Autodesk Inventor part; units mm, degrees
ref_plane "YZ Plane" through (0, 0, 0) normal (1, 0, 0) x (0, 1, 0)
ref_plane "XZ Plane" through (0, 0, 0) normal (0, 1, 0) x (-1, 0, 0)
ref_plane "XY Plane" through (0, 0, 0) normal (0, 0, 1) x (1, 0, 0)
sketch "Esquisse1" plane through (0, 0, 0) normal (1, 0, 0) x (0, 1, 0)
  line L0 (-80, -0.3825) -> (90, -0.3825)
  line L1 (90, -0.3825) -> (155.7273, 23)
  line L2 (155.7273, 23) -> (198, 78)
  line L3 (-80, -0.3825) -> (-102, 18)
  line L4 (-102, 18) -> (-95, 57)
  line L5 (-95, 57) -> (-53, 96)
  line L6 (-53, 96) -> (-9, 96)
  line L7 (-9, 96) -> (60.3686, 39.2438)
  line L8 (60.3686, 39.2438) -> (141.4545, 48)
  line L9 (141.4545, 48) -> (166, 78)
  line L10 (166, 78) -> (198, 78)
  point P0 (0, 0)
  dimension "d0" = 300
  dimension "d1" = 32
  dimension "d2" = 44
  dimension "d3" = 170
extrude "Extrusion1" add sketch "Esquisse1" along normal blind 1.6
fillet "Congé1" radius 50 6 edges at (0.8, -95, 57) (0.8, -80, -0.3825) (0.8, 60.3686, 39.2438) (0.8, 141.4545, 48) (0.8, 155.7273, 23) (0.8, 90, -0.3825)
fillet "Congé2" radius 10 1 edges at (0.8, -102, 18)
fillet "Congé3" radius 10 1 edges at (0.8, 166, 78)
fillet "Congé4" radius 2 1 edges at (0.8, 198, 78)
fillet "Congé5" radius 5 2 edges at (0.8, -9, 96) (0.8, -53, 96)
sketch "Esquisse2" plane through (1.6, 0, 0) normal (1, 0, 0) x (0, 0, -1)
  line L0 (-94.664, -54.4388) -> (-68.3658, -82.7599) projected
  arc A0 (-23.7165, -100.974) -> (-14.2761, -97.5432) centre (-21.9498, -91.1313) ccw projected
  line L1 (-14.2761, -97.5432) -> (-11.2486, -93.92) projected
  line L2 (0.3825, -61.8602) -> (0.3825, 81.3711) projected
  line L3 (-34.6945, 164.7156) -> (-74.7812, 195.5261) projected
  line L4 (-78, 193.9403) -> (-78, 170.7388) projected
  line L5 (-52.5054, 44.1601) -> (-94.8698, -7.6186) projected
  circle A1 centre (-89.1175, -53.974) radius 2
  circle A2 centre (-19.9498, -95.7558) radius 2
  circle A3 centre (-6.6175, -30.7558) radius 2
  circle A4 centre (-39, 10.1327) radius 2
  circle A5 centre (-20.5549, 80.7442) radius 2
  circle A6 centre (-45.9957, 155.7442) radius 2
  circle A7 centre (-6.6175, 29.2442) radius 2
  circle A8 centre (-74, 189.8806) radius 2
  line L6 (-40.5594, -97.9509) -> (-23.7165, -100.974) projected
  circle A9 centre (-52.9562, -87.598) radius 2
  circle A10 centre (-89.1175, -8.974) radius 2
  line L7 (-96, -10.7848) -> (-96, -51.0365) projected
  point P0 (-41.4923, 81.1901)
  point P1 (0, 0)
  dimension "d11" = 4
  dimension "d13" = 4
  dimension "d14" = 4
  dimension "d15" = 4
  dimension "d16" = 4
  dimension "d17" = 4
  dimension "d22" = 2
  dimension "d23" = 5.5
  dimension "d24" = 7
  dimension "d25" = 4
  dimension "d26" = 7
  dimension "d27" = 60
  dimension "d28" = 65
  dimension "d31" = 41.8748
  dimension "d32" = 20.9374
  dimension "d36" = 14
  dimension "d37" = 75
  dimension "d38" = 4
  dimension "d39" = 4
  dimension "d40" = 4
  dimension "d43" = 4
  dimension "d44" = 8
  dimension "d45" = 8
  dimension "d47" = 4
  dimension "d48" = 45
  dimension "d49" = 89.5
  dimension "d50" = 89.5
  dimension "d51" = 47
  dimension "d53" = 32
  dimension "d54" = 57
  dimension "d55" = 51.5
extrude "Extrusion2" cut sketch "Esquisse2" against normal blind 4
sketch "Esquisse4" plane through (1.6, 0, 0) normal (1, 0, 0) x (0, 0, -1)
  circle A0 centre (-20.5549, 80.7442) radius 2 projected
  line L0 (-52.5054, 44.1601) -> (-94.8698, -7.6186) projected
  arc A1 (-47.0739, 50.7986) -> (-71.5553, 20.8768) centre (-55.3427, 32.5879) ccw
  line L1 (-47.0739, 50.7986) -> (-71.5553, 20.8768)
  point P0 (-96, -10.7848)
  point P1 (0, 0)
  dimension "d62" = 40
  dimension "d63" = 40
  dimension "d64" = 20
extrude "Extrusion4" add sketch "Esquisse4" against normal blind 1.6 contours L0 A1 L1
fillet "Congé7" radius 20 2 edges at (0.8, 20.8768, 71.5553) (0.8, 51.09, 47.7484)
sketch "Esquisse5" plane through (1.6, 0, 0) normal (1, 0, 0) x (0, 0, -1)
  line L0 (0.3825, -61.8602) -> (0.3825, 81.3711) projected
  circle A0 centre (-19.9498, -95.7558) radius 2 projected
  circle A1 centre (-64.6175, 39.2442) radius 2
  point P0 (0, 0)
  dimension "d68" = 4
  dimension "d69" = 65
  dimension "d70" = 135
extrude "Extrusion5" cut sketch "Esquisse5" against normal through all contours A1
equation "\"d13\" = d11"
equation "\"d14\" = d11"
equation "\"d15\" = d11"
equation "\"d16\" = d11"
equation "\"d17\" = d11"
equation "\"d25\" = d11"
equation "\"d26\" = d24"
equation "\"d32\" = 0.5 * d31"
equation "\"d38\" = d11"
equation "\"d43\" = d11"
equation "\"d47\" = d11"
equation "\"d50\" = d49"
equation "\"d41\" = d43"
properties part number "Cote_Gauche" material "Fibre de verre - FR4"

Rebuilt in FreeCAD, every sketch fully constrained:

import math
import FreeCAD as App
import Part
import Sketcher

V = App.Vector
Q = App.Units.Quantity


def edges_at(feature, points):
    """Names of the edges that pass closest to the given points."""
    edges = feature.Shape.Edges
    near = lambda p: min(range(len(edges)), key=lambda i: edges[i].distToShape(Part.Vertex(*p))[0])
    return sorted({f"Edge{near(p) + 1}" for p in points})

doc = App.newDocument("Part")
params = doc.addObject("Spreadsheet::Sheet", "Params")
for row, (alias, value) in enumerate([
    ("sketch1_width", "170 mm"),
    ("sketch1_width2", "32 mm"),
    ("sketch1_width3", "44 mm"),
    ("pad1_length", "1.6 mm"),
    ("fillet_radius", "50 mm"),
    ("fillet2_radius", "10 mm"),
    ("fillet3_radius", "10 mm"),
    ("fillet4_radius", "2 mm"),
    ("fillet5_radius", "5 mm"),
    ("sketch2_diameter", "4 mm"),
    ("pocket1_length", "4 mm"),
    ("sketch3_radius", "20 mm"),
    ("pad2_length", "1.6 mm"),
    ("fillet6_radius", "20 mm"),
    ("sketch4_diameter", "4 mm"),
], start=1):
    params.set(f"A{row}", alias)
    params.set(f"B{row}", "=" + value)
    params.setAlias(f"B{row}", alias)

body = doc.addObject("PartDesign::Body", "Body")

# Sketch on YZ plane
sketch1 = doc.addObject("Sketcher::SketchObject", "Sketch")
body.addObject(sketch1)
sketch1.AttachmentSupport = (doc.YZ_Plane, [""])
sketch1.MapMode = "FlatFace"
sketch1.addGeometry([
    Part.LineSegment(V(-102, 18, 0), V(-80, 0, 0)),  # 0
    Part.LineSegment(V(-80, 0, 0), V(90, 0, 0)),  # 1
    Part.LineSegment(V(90, 0, 0), V(156, 23, 0)),  # 2
    Part.LineSegment(V(156, 23, 0), V(198, 78, 0)),  # 3
    Part.LineSegment(V(198, 78, 0), V(166, 78, 0)),  # 4
    Part.LineSegment(V(166, 78, 0), V(141, 48, 0)),  # 5
    Part.LineSegment(V(141, 48, 0), V(60, 39, 0)),  # 6
    Part.LineSegment(V(60, 39, 0), V(-9, 96, 0)),  # 7
    Part.LineSegment(V(-9, 96, 0), V(-53, 96, 0)),  # 8
    Part.LineSegment(V(-53, 96, 0), V(-95, 57, 0)),  # 9
    Part.LineSegment(V(-95, 57, 0), V(-102, 18, 0)),  # 10
], False)
sketch1.addConstraint([
    Sketcher.Constraint("Coincident", 0, 2, 1, 1),
    Sketcher.Constraint("Coincident", 1, 2, 2, 1),
    Sketcher.Constraint("Coincident", 2, 2, 3, 1),
    Sketcher.Constraint("Coincident", 3, 2, 4, 1),
    Sketcher.Constraint("Coincident", 4, 2, 5, 1),
    Sketcher.Constraint("Coincident", 5, 2, 6, 1),
    Sketcher.Constraint("Coincident", 6, 2, 7, 1),
    Sketcher.Constraint("Coincident", 7, 2, 8, 1),
    Sketcher.Constraint("Coincident", 8, 2, 9, 1),
    Sketcher.Constraint("Coincident", 9, 2, 10, 1),
    Sketcher.Constraint("Coincident", 10, 2, 0, 1),
    Sketcher.Constraint("Horizontal", 1),
    Sketcher.Constraint("Horizontal", 4),
    Sketcher.Constraint("Horizontal", 8),
    Sketcher.Constraint("Perpendicular", 5, 7),
    Sketcher.Constraint("DistanceX", 1, 1, 1, 2, Q("170 mm")),
    Sketcher.Constraint("DistanceX", 4, 2, 4, 1, Q("32 mm")),
    Sketcher.Constraint("DistanceX", 8, 2, 8, 1, Q("44 mm")),
    Sketcher.Constraint("DistanceX", 0, 2, -1, 1, Q("80 mm")),
    Sketcher.Constraint("DistanceY", -1, 1, 2, 2, Q("23 mm")),
    Sketcher.Constraint("DistanceX", -1, 1, 3, 2, Q("198 mm")),
    Sketcher.Constraint("DistanceY", -1, 1, 3, 2, Q("78 mm")),
    Sketcher.Constraint("DistanceY", -1, 1, 5, 2, Q("48 mm")),
    Sketcher.Constraint("DistanceX", 7, 2, -1, 1, Q("9 mm")),
    Sketcher.Constraint("DistanceY", -1, 1, 7, 2, Q("96 mm")),
    Sketcher.Constraint("DistanceX", 9, 2, -1, 1, Q("95 mm")),
    Sketcher.Constraint("DistanceY", -1, 1, 9, 2, Q("57 mm")),
    Sketcher.Constraint("DistanceX", 10, 2, -1, 1, Q("102 mm")),
    Sketcher.Constraint("DistanceY", -1, 1, 10, 2, Q("18 mm")),
    Sketcher.Constraint("Angle", 0, Q("-39.881 deg")),
    Sketcher.Constraint("Angle", 5, Q("-129.2895 deg")),
    Sketcher.Constraint("DistanceX", 6, 2, 5, 2, Q("81.086 mm")),
    Sketcher.Constraint("Distance", 2, Q("69.7626 mm")),
])
sketch1.setExpression("Constraints[15]", "Params.sketch1_width")
sketch1.setExpression("Constraints[16]", "Params.sketch1_width2")
sketch1.setExpression("Constraints[17]", "Params.sketch1_width3")
pad1 = doc.addObject("PartDesign::Pad", "Pad")
body.addObject(pad1)
pad1.Profile = sketch1
pad1.setExpression("Length", "Params.pad1_length")
doc.recompute()

fillet = doc.addObject("PartDesign::Fillet", "Fillet")
body.addObject(fillet)
fillet.Base = (pad1, edges_at(pad1, [
    (0.8, -95, 57),
    (0.8, -80, -0.383),
    (0.8, 60.369, 39.244),
    (0.8, 141.454, 48),
    (0.8, 155.727, 23),
    (0.8, 90, -0.383),
]))
fillet.setExpression("Radius", "Params.fillet_radius")
doc.recompute()

fillet2 = doc.addObject("PartDesign::Fillet", "Fillet001")
body.addObject(fillet2)
fillet2.Base = (fillet, edges_at(fillet, [(0.8, -102, 18)]))
fillet2.setExpression("Radius", "Params.fillet2_radius")
doc.recompute()

fillet3 = doc.addObject("PartDesign::Fillet", "Fillet002")
body.addObject(fillet3)
fillet3.Base = (fillet2, edges_at(fillet2, [(0.8, 166, 78)]))
fillet3.setExpression("Radius", "Params.fillet3_radius")
doc.recompute()

fillet4 = doc.addObject("PartDesign::Fillet", "Fillet003")
body.addObject(fillet4)
fillet4.Base = (fillet3, edges_at(fillet3, [(0.8, 198, 78)]))
fillet4.setExpression("Radius", "Params.fillet4_radius")
doc.recompute()

fillet5 = doc.addObject("PartDesign::Fillet", "Fillet004")
body.addObject(fillet5)
fillet5.Base = (fillet4, edges_at(fillet4, [(0.8, -9, 96), (0.8, -53, 96)]))
fillet5.setExpression("Radius", "Params.fillet5_radius")

# Sketch on YZ plane
sketch2 = doc.addObject("Sketcher::SketchObject", "Sketch001")
body.addObject(sketch2)
sketch2.AttachmentSupport = (doc.YZ_Plane, [""])
sketch2.MapMode = "FlatFace"
sketch2.AttachmentOffset = App.Placement(V(0, 0, 1.6), App.Rotation())
sketch2.addGeometry([
    Part.Circle(V(-54, 89.1, 0), V(0, 0, 1), 2),  # 0
    Part.Circle(V(-95.8, 19.9, 0), V(0, 0, 1), 2),  # 1
    Part.Circle(V(-30.8, 6.6, 0), V(0, 0, 1), 2),  # 2
    Part.Circle(V(10.1, 39, 0), V(0, 0, 1), 2),  # 3
    Part.Circle(V(80.7, 20.6, 0), V(0, 0, 1), 2),  # 4
    Part.Circle(V(155.7, 46, 0), V(0, 0, 1), 2),  # 5
    Part.Circle(V(29.2, 6.6, 0), V(0, 0, 1), 2),  # 6
    Part.Circle(V(189.9, 74, 0), V(0, 0, 1), 2),  # 7
    Part.Circle(V(-87.6, 53, 0), V(0, 0, 1), 2),  # 8
    Part.Circle(V(-9, 89.1, 0), V(0, 0, 1), 2),  # 9
], False)
sketch2.addConstraint([
    Sketcher.Constraint("Equal", 0, 1),
    Sketcher.Constraint("Equal", 1, 2),
    Sketcher.Constraint("Equal", 2, 3),
    Sketcher.Constraint("Equal", 3, 4),
    Sketcher.Constraint("Equal", 4, 5),
    Sketcher.Constraint("Equal", 5, 6),
    Sketcher.Constraint("Equal", 6, 7),
    Sketcher.Constraint("Equal", 7, 8),
    Sketcher.Constraint("Equal", 8, 9),
    Sketcher.Constraint("Horizontal", 2, 3, 6, 3),
    Sketcher.Constraint("Horizontal", 0, 3, 9, 3),
    Sketcher.Constraint("Diameter", 0, Q("4 mm")),
    Sketcher.Constraint("DistanceX", 1, 3, 2, 3, Q("65 mm")),
    Sketcher.Constraint("DistanceX", 4, 3, 5, 3, Q("75 mm")),
    Sketcher.Constraint("DistanceX", 2, 3, 6, 3, Q("60 mm")),
    Sketcher.Constraint("DistanceX", 0, 3, 9, 3, Q("45 mm")),
    Sketcher.Constraint("DistanceX", 6, 3, 4, 3, Q("51.5 mm")),
    Sketcher.Constraint("DistanceY", -1, 1, 3, 3, Q("39 mm")),
    Sketcher.Constraint("DistanceY", -1, 1, 7, 3, Q("74 mm")),
    Sketcher.Constraint("DistanceY", 2, 3, 0, 3, Q("82.5 mm")),
    Sketcher.Constraint("DistanceX", 0, 3, -1, 1, Q("53.974 mm")),
    Sketcher.Constraint("DistanceY", -1, 1, 4, 3, Q("20.555 mm")),
    Sketcher.Constraint("DistanceX", 8, 3, -1, 1, Q("87.598 mm")),
    Sketcher.Constraint("DistanceY", 1, 3, 4, 3, Q("0.605 mm")),
    Sketcher.Constraint("DistanceY", 1, 3, 5, 3, Q("26.046 mm")),
    Sketcher.Constraint("DistanceX", 3, 3, 7, 3, Q("179.748 mm")),
    Sketcher.Constraint("DistanceY", -1, 1, 0, 3, Q("89.1175 mm")),
    Sketcher.Constraint("DistanceX", 1, 3, -1, 1, Q("95.7558 mm")),
    Sketcher.Constraint("DistanceX", -1, 1, 3, 3, Q("10.1327 mm")),
    Sketcher.Constraint("DistanceY", -1, 1, 8, 3, Q("52.9562 mm")),
])
sketch2.setExpression("Constraints[11]", "Params.sketch2_diameter")
pocket1 = doc.addObject("PartDesign::Pocket", "Pocket")
body.addObject(pocket1)
pocket1.Profile = sketch2
pocket1.setExpression("Length", "Params.pocket1_length")

# Sketch on YZ plane
sketch3 = doc.addObject("Sketcher::SketchObject", "Sketch002")
body.addObject(sketch3)
sketch3.AttachmentSupport = (doc.YZ_Plane, [""])
sketch3.MapMode = "FlatFace"
sketch3.AttachmentOffset = App.Placement(V(0, 0, 1.6), App.Rotation())
sketch3.addGeometry([
    Part.LineSegment(V(21, 72, 0), V(44, 53, 0)),
    Part.LineSegment(V(44, 53, 0), V(51, 47, 0)),
    Part.ArcOfCircle(Part.Circle(V(33, 55, 0), V(0, 0, 1), 20), math.radians(-24), math.radians(126)),
], False)
sketch3.addConstraint([
    Sketcher.Constraint("Coincident", 0, 2, 1, 1),
    Sketcher.Constraint("Coincident", 1, 2, 2, 1),
    Sketcher.Constraint("Coincident", 2, 2, 0, 1),
    Sketcher.Constraint("Parallel", 0, 1),
    Sketcher.Constraint("Radius", 2, Q("20 mm")),
    Sketcher.Constraint("Angle", 0, Q("-39.2894 deg")),
    Sketcher.Constraint("DistanceX", -1, 1, 0, 2, Q("44.16 mm")),
    Sketcher.Constraint("DistanceY", 0, 2, 2, 2, Q("19.05 mm")),
    Sketcher.Constraint("DistanceX", -1, 1, 2, 3, Q("32.588 mm")),
    Sketcher.Constraint("DistanceY", -1, 1, 1, 2, Q("47.074 mm")),
])
sketch3.setExpression("Constraints[4]", "Params.sketch3_radius")
pad2 = doc.addObject("PartDesign::Pad", "Pad001")
body.addObject(pad2)
pad2.Profile = sketch3
pad2.setExpression("Length", "Params.pad2_length")
pad2.Reversed = True
doc.recompute()

fillet6 = doc.addObject("PartDesign::Fillet", "Fillet005")
body.addObject(fillet6)
fillet6.Base = (pad2, edges_at(pad2, [(0.8, 20.877, 71.555), (0.8, 51.09, 47.748)]))
fillet6.setExpression("Radius", "Params.fillet6_radius")

# Sketch on YZ plane
sketch4 = doc.addObject("Sketcher::SketchObject", "Sketch003")
body.addObject(sketch4)
sketch4.AttachmentSupport = (doc.YZ_Plane, [""])
sketch4.MapMode = "FlatFace"
sketch4.AttachmentOffset = App.Placement(V(0, 0, 1.6), App.Rotation())
sketch4.addGeometry(Part.Circle(V(39.2, 64.6, 0), V(0, 0, 1), 2), False)
sketch4.addConstraint([
    Sketcher.Constraint("Diameter", 0, Q("4 mm")),
    Sketcher.Constraint("DistanceX", -1, 1, 0, 3, Q("39.2442 mm")),
    Sketcher.Constraint("DistanceY", -1, 1, 0, 3, Q("64.6175 mm")),
])
sketch4.setExpression("Constraints[0]", "Params.sketch4_diameter")
pocket2 = doc.addObject("PartDesign::Pocket", "Pocket001")
body.addObject(pocket2)
pocket2.Profile = sketch4
pocket2.Type = "ThroughAll"

doc.recompute()
